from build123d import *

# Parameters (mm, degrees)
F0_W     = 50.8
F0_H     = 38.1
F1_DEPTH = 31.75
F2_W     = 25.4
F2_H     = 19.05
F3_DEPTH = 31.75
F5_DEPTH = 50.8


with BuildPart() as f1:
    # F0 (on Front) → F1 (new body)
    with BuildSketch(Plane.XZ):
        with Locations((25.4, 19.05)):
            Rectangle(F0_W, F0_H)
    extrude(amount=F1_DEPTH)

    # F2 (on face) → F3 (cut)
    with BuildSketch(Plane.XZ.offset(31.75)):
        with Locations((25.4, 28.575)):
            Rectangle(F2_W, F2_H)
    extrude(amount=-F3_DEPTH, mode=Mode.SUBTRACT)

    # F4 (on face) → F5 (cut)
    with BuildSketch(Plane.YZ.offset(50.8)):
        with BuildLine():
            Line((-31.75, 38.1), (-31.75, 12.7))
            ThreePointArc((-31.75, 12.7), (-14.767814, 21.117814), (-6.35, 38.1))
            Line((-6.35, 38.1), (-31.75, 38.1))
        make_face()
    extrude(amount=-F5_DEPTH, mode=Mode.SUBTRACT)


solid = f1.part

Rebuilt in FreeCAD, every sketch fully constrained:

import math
import FreeCAD as App
import Part
import Sketcher
Q = App.Units.Quantity

doc = App.newDocument("Part")
body = doc.addObject("PartDesign::Body", "Body")

# Sketch on XZ plane
sketch1 = doc.addObject("Sketcher::SketchObject", "Sketch")
body.addObject(sketch1)
sketch1.AttachmentSupport = (doc.XZ_Plane, [""])
sketch1.MapMode = "FlatFace"
sketch1.addGeometry([
    Part.LineSegment(App.Vector(0, 38, 0), App.Vector(0, 0, 0)),
    Part.LineSegment(App.Vector(0, 0, 0), App.Vector(51, 0, 0)),
    Part.LineSegment(App.Vector(51, 0, 0), App.Vector(51, 38, 0)),
    Part.LineSegment(App.Vector(51, 38, 0), App.Vector(0, 38, 0)),
], False)
sketch1.addConstraint([
    Sketcher.Constraint("Coincident", 0, 2, 1, 1),
    Sketcher.Constraint("Coincident", 1, 2, 2, 1),
    Sketcher.Constraint("Coincident", 2, 2, 3, 1),
    Sketcher.Constraint("Coincident", 3, 2, 0, 1),
    Sketcher.Constraint("Vertical", 0),
    Sketcher.Constraint("Horizontal", 1),
    Sketcher.Constraint("Vertical", 2),
    Sketcher.Constraint("Horizontal", 3),
    Sketcher.Constraint("Coincident", 0, 2, -1, 1),
    Sketcher.Constraint("DistanceX", 1, 1, 1, 2, Q("2 in")),
    Sketcher.Constraint("DistanceY", 0, 2, 0, 1, Q("1.5 in")),
])
pad1 = doc.addObject("PartDesign::Pad", "Pad")
body.addObject(pad1)
pad1.Profile = sketch1
pad1.Length = Q("1.25 in")

# Sketch on XZ plane
sketch2 = doc.addObject("Sketcher::SketchObject", "Sketch001")
body.addObject(sketch2)
sketch2.AttachmentSupport = (doc.XZ_Plane, [""])
sketch2.MapMode = "FlatFace"
sketch2.AttachmentOffset = App.Placement(App.Vector(0, 0, 1.25 * 25.4), App.Rotation())
sketch2.addGeometry([
    Part.LineSegment(App.Vector(13, 38, 0), App.Vector(13, 19, 0)),
    Part.LineSegment(App.Vector(13, 19, 0), App.Vector(38, 19, 0)),
    Part.LineSegment(App.Vector(38, 19, 0), App.Vector(38, 38, 0)),
    Part.LineSegment(App.Vector(38, 38, 0), App.Vector(13, 38, 0)),
], False)
sketch2.addConstraint([
    Sketcher.Constraint("Coincident", 0, 2, 1, 1),
    Sketcher.Constraint("Coincident", 1, 2, 2, 1),
    Sketcher.Constraint("Coincident", 2, 2, 3, 1),
    Sketcher.Constraint("Coincident", 3, 2, 0, 1),
    Sketcher.Constraint("Vertical", 0),
    Sketcher.Constraint("Horizontal", 1),
    Sketcher.Constraint("Vertical", 2),
    Sketcher.Constraint("Horizontal", 3),
    Sketcher.Constraint("DistanceX", 1, 1, 1, 2, Q("1 in")),
    Sketcher.Constraint("DistanceY", 0, 2, 0, 1, Q("0.75 in")),
    Sketcher.Constraint("DistanceX", -1, 1, 0, 2, Q("0.5 in")),
    Sketcher.Constraint("DistanceY", -1, 1, 2, 2, Q("1.5 in")),
])
pocket1 = doc.addObject("PartDesign::Pocket", "Pocket")
body.addObject(pocket1)
pocket1.Profile = sketch2
pocket1.Length = Q("1.25 in")

# Sketch on YZ plane
sketch3 = doc.addObject("Sketcher::SketchObject", "Sketch002")
body.addObject(sketch3)
sketch3.AttachmentSupport = (doc.YZ_Plane, [""])
sketch3.MapMode = "FlatFace"
sketch3.AttachmentOffset = App.Placement(App.Vector(0, 0, 2 * 25.4), App.Rotation())
sketch3.addGeometry([
    Part.LineSegment(App.Vector(-32, 38, 0), App.Vector(-32, 13, 0)),
    Part.ArcOfCircle(Part.Circle(App.Vector(-36, 42, 0), App.Vector(0, 0, 1), 30), math.radians(-82), math.radians(-8)),
    Part.LineSegment(App.Vector(-6, 38, 0), App.Vector(-32, 38, 0)),
], False)
sketch3.addConstraint([
    Sketcher.Constraint("Coincident", 0, 2, 1, 1),
    Sketcher.Constraint("Coincident", 1, 2, 2, 1),
    Sketcher.Constraint("Coincident", 2, 2, 0, 1),
    Sketcher.Constraint("Vertical", 0),
    Sketcher.Constraint("Horizontal", 2),
    Sketcher.Constraint("Equal", 2, 0),
    Sketcher.Constraint("DistanceX", 2, 2, 2, 1, Q("1 in")),
    Sketcher.Constraint("DistanceY", -1, 1, 0, 2, Q("0.5 in")),
    Sketcher.Constraint("DistanceX", 0, 2, -1, 1, Q("1.25 in")),
    Sketcher.Constraint("Radius", 1, Q("29.661381 mm")),
])
pocket2 = doc.addObject("PartDesign::Pocket", "Pocket001")
body.addObject(pocket2)
pocket2.Profile = sketch3
pocket2.Length = Q("2 in")

doc.recompute()
